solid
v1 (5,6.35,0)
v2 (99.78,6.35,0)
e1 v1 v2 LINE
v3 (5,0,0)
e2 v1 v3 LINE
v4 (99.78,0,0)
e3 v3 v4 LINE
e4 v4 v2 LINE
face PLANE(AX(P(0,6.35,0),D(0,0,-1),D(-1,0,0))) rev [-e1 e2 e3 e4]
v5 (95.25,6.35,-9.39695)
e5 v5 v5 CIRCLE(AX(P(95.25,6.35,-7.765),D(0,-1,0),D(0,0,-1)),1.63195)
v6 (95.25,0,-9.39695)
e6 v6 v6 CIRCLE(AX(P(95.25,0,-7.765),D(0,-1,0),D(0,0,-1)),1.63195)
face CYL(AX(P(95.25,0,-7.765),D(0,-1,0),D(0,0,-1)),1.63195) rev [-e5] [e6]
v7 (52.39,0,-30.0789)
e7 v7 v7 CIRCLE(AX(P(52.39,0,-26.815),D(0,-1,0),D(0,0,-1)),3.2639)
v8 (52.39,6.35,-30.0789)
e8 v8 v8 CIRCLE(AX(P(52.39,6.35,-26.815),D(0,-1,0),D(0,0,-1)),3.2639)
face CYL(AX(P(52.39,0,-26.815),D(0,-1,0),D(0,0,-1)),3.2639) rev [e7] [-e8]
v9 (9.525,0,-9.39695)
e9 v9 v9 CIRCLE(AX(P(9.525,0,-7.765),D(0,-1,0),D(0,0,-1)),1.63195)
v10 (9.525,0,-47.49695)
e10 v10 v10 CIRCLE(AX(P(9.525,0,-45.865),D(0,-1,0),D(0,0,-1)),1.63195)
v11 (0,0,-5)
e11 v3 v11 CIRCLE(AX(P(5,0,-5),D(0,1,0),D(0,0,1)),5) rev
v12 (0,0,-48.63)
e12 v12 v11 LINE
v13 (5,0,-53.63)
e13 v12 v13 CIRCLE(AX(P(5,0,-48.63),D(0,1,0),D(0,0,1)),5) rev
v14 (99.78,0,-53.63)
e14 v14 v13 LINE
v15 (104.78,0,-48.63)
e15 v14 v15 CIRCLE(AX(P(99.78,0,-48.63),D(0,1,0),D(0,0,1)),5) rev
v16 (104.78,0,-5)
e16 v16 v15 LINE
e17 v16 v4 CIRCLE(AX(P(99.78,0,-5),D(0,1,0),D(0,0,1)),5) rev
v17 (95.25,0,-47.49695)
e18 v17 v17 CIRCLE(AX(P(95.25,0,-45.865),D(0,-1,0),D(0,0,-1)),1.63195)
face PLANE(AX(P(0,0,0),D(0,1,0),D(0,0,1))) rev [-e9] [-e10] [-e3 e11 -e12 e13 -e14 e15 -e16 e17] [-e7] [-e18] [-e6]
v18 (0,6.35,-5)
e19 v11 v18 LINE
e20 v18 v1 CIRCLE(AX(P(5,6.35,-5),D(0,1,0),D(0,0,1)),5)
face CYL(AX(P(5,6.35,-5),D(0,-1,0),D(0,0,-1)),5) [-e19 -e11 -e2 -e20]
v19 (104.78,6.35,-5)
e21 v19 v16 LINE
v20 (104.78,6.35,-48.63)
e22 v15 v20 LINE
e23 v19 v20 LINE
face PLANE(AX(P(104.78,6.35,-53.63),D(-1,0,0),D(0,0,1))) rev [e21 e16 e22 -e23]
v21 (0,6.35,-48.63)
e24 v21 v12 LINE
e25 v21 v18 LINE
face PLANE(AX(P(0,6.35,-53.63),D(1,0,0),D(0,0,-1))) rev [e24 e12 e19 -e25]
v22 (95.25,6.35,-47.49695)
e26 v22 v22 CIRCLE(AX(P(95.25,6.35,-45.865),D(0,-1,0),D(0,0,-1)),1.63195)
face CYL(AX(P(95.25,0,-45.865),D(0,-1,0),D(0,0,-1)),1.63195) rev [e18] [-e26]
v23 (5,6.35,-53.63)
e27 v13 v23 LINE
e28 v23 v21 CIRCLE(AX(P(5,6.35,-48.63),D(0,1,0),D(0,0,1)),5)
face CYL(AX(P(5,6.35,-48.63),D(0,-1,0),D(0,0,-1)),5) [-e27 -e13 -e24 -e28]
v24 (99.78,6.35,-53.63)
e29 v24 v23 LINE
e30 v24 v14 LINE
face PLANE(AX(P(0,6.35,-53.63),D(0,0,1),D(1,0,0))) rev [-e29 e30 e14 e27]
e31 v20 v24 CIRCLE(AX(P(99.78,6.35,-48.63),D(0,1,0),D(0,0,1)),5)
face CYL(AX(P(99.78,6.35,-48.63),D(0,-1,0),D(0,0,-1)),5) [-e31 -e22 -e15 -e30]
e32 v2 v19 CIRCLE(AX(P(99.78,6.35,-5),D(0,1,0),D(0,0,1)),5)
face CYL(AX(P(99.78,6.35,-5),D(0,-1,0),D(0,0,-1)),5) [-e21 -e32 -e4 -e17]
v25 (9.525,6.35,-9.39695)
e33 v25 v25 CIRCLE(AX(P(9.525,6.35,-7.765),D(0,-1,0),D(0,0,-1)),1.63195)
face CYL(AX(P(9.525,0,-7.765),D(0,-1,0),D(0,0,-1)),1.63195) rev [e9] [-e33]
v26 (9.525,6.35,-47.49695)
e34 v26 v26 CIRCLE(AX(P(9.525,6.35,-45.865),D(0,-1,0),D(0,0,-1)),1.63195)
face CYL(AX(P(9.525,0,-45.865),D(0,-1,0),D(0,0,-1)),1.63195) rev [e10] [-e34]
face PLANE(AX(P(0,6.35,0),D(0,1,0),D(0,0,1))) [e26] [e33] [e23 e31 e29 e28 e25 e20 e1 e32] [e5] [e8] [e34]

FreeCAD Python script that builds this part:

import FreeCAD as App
import Part
import Sketcher
Q = App.Units.Quantity


def edges_at(feature, points):
    """Names of the edges that pass closest to the given points."""
    edges = feature.Shape.Edges
    near = lambda p: min(range(len(edges)), key=lambda i: edges[i].distToShape(Part.Vertex(*p))[0])
    return sorted({f"Edge{near(p) + 1}" for p in points})

doc = App.newDocument("Part")
params = doc.addObject("Spreadsheet::Sheet", "Params")
for row, (alias, value) in enumerate([
    ("pad1_length", "0.25 in"),
    ("sketch2_diameter", "0.257 in"),
    ("hole_diameter", "0.257 in"),
    ("hole2_diameter", "0.1285 in"),
    ("fillet_radius", "5 mm"),
], start=1):
    params.set(f"A{row}", alias)
    params.set(f"B{row}", "=" + value)
    params.setAlias(f"B{row}", alias)

body = doc.addObject("PartDesign::Body", "Body")

# Sketch on XZ plane
sketch1 = doc.addObject("Sketcher::SketchObject", "Sketch")
body.addObject(sketch1)
sketch1.AttachmentSupport = (doc.XZ_Plane, [""])
sketch1.MapMode = "FlatFace"
sketch1.addGeometry([
    Part.LineSegment(App.Vector(0, -54, 0), App.Vector(0, 0, 0)),
    Part.LineSegment(App.Vector(0, 0, 0), App.Vector(105, 0, 0)),
    Part.LineSegment(App.Vector(105, 0, 0), App.Vector(105, -54, 0)),
    Part.LineSegment(App.Vector(105, -54, 0), App.Vector(0, -54, 0)),
], False)
sketch1.addConstraint([
    Sketcher.Constraint("Coincident", 0, 2, 1, 1),
    Sketcher.Constraint("Coincident", 1, 2, 2, 1),
    Sketcher.Constraint("Coincident", 2, 2, 3, 1),
    Sketcher.Constraint("Coincident", 3, 2, 0, 1),
    Sketcher.Constraint("Vertical", 0),
    Sketcher.Constraint("Horizontal", 1),
    Sketcher.Constraint("Vertical", 2),
    Sketcher.Constraint("Horizontal", 3),
    Sketcher.Constraint("Coincident", 0, 2, -1, 1),
    Sketcher.Constraint("DistanceX", 1, 1, 1, 2, 104.78),
    Sketcher.Constraint("DistanceY", 0, 1, 0, 2, 53.63),
])
pad1 = doc.addObject("PartDesign::Pad", "Pad")
body.addObject(pad1)
pad1.Profile = sketch1
pad1.setExpression("Length", "Params.pad1_length")
pad1.Reversed = True

# Sketch on XZ plane
sketch2 = doc.addObject("Sketcher::SketchObject", "Sketch001")
body.addObject(sketch2)
sketch2.AttachmentSupport = (doc.XZ_Plane, [""])
sketch2.MapMode = "FlatFace"
sketch2.addGeometry(Part.Circle(App.Vector(52.4, -26.8, 0), App.Vector(0, 0, 1), 3.3), False)
sketch2.addConstraint([
    Sketcher.Constraint("Diameter", 0, Q("0.257 in")),
    Sketcher.Constraint("DistanceX", -1, 1, 0, 3, 52.39),
    Sketcher.Constraint("DistanceY", 0, 3, -1, 1, 26.815),
])
sketch2.setExpression("Constraints[0]", "Params.sketch2_diameter")
doc.recompute()
hole = doc.addObject("PartDesign::Hole", "Hole")
body.addObject(hole)
hole.Profile = sketch2
hole.ThreadType = "None"
hole.setExpression("Diameter", "Params.hole_diameter")
hole.DepthType = "ThroughAll"

# Sketch on XZ plane
sketch3 = doc.addObject("Sketcher::SketchObject", "Sketch002")
body.addObject(sketch3)
sketch3.AttachmentSupport = (doc.XZ_Plane, [""])
sketch3.MapMode = "FlatFace"
sketch3.addGeometry([
    Part.Circle(App.Vector(9.5, -7.8, 0), App.Vector(0, 0, 1), 1.6),
    Part.Circle(App.Vector(9.5, -45.9, 0), App.Vector(0, 0, 1), 1.6),
    Part.Circle(App.Vector(95.2, -45.9, 0), App.Vector(0, 0, 1), 1.6),
    Part.Circle(App.Vector(95.2, -7.8, 0), App.Vector(0, 0, 1), 1.6),
], False)
sketch3.addConstraint([
    Sketcher.Constraint("Equal", 0, 1),
    Sketcher.Constraint("Equal", 1, 2),
    Sketcher.Constraint("Equal", 2, 3),
    Sketcher.Constraint("Horizontal", 1, 3, 2, 3),
    Sketcher.Constraint("Horizontal", 0, 3, 3, 3),
    Sketcher.Constraint("Vertical", 0, 3, 1, 3),
    Sketcher.Constraint("Vertical", 2, 3, 3, 3),
    Sketcher.Constraint("Diameter", 0, Q("0.1285 in")),
    Sketcher.Constraint("DistanceY", 1, 3, 0, 3, Q("1.5 in")),
    Sketcher.Constraint("DistanceX", -1, 1, 2, 3, Q("3.75 in")),
    Sketcher.Constraint("DistanceX", -1, 1, 0, 3, Q("0.375 in")),
    Sketcher.Constraint("DistanceY", 0, 3, -1, 1, 7.765),
])
doc.recompute()
hole2 = doc.addObject("PartDesign::Hole", "Hole001")
body.addObject(hole2)
hole2.Profile = sketch3
hole2.ThreadType = "None"
hole2.setExpression("Diameter", "Params.hole2_diameter")
hole2.DepthType = "ThroughAll"
doc.recompute()

fillet = doc.addObject("PartDesign::Fillet", "Fillet")
body.addObject(fillet)
fillet.Base = (hole2, edges_at(hole2, [
    (0, 3.175, -53.63),
    (104.78, 3.175, -53.63),
    (104.78, 3.175, 0),
    (0, 3.175, 0),
]))
fillet.setExpression("Radius", "Params.fillet_radius")

doc.recompute()
